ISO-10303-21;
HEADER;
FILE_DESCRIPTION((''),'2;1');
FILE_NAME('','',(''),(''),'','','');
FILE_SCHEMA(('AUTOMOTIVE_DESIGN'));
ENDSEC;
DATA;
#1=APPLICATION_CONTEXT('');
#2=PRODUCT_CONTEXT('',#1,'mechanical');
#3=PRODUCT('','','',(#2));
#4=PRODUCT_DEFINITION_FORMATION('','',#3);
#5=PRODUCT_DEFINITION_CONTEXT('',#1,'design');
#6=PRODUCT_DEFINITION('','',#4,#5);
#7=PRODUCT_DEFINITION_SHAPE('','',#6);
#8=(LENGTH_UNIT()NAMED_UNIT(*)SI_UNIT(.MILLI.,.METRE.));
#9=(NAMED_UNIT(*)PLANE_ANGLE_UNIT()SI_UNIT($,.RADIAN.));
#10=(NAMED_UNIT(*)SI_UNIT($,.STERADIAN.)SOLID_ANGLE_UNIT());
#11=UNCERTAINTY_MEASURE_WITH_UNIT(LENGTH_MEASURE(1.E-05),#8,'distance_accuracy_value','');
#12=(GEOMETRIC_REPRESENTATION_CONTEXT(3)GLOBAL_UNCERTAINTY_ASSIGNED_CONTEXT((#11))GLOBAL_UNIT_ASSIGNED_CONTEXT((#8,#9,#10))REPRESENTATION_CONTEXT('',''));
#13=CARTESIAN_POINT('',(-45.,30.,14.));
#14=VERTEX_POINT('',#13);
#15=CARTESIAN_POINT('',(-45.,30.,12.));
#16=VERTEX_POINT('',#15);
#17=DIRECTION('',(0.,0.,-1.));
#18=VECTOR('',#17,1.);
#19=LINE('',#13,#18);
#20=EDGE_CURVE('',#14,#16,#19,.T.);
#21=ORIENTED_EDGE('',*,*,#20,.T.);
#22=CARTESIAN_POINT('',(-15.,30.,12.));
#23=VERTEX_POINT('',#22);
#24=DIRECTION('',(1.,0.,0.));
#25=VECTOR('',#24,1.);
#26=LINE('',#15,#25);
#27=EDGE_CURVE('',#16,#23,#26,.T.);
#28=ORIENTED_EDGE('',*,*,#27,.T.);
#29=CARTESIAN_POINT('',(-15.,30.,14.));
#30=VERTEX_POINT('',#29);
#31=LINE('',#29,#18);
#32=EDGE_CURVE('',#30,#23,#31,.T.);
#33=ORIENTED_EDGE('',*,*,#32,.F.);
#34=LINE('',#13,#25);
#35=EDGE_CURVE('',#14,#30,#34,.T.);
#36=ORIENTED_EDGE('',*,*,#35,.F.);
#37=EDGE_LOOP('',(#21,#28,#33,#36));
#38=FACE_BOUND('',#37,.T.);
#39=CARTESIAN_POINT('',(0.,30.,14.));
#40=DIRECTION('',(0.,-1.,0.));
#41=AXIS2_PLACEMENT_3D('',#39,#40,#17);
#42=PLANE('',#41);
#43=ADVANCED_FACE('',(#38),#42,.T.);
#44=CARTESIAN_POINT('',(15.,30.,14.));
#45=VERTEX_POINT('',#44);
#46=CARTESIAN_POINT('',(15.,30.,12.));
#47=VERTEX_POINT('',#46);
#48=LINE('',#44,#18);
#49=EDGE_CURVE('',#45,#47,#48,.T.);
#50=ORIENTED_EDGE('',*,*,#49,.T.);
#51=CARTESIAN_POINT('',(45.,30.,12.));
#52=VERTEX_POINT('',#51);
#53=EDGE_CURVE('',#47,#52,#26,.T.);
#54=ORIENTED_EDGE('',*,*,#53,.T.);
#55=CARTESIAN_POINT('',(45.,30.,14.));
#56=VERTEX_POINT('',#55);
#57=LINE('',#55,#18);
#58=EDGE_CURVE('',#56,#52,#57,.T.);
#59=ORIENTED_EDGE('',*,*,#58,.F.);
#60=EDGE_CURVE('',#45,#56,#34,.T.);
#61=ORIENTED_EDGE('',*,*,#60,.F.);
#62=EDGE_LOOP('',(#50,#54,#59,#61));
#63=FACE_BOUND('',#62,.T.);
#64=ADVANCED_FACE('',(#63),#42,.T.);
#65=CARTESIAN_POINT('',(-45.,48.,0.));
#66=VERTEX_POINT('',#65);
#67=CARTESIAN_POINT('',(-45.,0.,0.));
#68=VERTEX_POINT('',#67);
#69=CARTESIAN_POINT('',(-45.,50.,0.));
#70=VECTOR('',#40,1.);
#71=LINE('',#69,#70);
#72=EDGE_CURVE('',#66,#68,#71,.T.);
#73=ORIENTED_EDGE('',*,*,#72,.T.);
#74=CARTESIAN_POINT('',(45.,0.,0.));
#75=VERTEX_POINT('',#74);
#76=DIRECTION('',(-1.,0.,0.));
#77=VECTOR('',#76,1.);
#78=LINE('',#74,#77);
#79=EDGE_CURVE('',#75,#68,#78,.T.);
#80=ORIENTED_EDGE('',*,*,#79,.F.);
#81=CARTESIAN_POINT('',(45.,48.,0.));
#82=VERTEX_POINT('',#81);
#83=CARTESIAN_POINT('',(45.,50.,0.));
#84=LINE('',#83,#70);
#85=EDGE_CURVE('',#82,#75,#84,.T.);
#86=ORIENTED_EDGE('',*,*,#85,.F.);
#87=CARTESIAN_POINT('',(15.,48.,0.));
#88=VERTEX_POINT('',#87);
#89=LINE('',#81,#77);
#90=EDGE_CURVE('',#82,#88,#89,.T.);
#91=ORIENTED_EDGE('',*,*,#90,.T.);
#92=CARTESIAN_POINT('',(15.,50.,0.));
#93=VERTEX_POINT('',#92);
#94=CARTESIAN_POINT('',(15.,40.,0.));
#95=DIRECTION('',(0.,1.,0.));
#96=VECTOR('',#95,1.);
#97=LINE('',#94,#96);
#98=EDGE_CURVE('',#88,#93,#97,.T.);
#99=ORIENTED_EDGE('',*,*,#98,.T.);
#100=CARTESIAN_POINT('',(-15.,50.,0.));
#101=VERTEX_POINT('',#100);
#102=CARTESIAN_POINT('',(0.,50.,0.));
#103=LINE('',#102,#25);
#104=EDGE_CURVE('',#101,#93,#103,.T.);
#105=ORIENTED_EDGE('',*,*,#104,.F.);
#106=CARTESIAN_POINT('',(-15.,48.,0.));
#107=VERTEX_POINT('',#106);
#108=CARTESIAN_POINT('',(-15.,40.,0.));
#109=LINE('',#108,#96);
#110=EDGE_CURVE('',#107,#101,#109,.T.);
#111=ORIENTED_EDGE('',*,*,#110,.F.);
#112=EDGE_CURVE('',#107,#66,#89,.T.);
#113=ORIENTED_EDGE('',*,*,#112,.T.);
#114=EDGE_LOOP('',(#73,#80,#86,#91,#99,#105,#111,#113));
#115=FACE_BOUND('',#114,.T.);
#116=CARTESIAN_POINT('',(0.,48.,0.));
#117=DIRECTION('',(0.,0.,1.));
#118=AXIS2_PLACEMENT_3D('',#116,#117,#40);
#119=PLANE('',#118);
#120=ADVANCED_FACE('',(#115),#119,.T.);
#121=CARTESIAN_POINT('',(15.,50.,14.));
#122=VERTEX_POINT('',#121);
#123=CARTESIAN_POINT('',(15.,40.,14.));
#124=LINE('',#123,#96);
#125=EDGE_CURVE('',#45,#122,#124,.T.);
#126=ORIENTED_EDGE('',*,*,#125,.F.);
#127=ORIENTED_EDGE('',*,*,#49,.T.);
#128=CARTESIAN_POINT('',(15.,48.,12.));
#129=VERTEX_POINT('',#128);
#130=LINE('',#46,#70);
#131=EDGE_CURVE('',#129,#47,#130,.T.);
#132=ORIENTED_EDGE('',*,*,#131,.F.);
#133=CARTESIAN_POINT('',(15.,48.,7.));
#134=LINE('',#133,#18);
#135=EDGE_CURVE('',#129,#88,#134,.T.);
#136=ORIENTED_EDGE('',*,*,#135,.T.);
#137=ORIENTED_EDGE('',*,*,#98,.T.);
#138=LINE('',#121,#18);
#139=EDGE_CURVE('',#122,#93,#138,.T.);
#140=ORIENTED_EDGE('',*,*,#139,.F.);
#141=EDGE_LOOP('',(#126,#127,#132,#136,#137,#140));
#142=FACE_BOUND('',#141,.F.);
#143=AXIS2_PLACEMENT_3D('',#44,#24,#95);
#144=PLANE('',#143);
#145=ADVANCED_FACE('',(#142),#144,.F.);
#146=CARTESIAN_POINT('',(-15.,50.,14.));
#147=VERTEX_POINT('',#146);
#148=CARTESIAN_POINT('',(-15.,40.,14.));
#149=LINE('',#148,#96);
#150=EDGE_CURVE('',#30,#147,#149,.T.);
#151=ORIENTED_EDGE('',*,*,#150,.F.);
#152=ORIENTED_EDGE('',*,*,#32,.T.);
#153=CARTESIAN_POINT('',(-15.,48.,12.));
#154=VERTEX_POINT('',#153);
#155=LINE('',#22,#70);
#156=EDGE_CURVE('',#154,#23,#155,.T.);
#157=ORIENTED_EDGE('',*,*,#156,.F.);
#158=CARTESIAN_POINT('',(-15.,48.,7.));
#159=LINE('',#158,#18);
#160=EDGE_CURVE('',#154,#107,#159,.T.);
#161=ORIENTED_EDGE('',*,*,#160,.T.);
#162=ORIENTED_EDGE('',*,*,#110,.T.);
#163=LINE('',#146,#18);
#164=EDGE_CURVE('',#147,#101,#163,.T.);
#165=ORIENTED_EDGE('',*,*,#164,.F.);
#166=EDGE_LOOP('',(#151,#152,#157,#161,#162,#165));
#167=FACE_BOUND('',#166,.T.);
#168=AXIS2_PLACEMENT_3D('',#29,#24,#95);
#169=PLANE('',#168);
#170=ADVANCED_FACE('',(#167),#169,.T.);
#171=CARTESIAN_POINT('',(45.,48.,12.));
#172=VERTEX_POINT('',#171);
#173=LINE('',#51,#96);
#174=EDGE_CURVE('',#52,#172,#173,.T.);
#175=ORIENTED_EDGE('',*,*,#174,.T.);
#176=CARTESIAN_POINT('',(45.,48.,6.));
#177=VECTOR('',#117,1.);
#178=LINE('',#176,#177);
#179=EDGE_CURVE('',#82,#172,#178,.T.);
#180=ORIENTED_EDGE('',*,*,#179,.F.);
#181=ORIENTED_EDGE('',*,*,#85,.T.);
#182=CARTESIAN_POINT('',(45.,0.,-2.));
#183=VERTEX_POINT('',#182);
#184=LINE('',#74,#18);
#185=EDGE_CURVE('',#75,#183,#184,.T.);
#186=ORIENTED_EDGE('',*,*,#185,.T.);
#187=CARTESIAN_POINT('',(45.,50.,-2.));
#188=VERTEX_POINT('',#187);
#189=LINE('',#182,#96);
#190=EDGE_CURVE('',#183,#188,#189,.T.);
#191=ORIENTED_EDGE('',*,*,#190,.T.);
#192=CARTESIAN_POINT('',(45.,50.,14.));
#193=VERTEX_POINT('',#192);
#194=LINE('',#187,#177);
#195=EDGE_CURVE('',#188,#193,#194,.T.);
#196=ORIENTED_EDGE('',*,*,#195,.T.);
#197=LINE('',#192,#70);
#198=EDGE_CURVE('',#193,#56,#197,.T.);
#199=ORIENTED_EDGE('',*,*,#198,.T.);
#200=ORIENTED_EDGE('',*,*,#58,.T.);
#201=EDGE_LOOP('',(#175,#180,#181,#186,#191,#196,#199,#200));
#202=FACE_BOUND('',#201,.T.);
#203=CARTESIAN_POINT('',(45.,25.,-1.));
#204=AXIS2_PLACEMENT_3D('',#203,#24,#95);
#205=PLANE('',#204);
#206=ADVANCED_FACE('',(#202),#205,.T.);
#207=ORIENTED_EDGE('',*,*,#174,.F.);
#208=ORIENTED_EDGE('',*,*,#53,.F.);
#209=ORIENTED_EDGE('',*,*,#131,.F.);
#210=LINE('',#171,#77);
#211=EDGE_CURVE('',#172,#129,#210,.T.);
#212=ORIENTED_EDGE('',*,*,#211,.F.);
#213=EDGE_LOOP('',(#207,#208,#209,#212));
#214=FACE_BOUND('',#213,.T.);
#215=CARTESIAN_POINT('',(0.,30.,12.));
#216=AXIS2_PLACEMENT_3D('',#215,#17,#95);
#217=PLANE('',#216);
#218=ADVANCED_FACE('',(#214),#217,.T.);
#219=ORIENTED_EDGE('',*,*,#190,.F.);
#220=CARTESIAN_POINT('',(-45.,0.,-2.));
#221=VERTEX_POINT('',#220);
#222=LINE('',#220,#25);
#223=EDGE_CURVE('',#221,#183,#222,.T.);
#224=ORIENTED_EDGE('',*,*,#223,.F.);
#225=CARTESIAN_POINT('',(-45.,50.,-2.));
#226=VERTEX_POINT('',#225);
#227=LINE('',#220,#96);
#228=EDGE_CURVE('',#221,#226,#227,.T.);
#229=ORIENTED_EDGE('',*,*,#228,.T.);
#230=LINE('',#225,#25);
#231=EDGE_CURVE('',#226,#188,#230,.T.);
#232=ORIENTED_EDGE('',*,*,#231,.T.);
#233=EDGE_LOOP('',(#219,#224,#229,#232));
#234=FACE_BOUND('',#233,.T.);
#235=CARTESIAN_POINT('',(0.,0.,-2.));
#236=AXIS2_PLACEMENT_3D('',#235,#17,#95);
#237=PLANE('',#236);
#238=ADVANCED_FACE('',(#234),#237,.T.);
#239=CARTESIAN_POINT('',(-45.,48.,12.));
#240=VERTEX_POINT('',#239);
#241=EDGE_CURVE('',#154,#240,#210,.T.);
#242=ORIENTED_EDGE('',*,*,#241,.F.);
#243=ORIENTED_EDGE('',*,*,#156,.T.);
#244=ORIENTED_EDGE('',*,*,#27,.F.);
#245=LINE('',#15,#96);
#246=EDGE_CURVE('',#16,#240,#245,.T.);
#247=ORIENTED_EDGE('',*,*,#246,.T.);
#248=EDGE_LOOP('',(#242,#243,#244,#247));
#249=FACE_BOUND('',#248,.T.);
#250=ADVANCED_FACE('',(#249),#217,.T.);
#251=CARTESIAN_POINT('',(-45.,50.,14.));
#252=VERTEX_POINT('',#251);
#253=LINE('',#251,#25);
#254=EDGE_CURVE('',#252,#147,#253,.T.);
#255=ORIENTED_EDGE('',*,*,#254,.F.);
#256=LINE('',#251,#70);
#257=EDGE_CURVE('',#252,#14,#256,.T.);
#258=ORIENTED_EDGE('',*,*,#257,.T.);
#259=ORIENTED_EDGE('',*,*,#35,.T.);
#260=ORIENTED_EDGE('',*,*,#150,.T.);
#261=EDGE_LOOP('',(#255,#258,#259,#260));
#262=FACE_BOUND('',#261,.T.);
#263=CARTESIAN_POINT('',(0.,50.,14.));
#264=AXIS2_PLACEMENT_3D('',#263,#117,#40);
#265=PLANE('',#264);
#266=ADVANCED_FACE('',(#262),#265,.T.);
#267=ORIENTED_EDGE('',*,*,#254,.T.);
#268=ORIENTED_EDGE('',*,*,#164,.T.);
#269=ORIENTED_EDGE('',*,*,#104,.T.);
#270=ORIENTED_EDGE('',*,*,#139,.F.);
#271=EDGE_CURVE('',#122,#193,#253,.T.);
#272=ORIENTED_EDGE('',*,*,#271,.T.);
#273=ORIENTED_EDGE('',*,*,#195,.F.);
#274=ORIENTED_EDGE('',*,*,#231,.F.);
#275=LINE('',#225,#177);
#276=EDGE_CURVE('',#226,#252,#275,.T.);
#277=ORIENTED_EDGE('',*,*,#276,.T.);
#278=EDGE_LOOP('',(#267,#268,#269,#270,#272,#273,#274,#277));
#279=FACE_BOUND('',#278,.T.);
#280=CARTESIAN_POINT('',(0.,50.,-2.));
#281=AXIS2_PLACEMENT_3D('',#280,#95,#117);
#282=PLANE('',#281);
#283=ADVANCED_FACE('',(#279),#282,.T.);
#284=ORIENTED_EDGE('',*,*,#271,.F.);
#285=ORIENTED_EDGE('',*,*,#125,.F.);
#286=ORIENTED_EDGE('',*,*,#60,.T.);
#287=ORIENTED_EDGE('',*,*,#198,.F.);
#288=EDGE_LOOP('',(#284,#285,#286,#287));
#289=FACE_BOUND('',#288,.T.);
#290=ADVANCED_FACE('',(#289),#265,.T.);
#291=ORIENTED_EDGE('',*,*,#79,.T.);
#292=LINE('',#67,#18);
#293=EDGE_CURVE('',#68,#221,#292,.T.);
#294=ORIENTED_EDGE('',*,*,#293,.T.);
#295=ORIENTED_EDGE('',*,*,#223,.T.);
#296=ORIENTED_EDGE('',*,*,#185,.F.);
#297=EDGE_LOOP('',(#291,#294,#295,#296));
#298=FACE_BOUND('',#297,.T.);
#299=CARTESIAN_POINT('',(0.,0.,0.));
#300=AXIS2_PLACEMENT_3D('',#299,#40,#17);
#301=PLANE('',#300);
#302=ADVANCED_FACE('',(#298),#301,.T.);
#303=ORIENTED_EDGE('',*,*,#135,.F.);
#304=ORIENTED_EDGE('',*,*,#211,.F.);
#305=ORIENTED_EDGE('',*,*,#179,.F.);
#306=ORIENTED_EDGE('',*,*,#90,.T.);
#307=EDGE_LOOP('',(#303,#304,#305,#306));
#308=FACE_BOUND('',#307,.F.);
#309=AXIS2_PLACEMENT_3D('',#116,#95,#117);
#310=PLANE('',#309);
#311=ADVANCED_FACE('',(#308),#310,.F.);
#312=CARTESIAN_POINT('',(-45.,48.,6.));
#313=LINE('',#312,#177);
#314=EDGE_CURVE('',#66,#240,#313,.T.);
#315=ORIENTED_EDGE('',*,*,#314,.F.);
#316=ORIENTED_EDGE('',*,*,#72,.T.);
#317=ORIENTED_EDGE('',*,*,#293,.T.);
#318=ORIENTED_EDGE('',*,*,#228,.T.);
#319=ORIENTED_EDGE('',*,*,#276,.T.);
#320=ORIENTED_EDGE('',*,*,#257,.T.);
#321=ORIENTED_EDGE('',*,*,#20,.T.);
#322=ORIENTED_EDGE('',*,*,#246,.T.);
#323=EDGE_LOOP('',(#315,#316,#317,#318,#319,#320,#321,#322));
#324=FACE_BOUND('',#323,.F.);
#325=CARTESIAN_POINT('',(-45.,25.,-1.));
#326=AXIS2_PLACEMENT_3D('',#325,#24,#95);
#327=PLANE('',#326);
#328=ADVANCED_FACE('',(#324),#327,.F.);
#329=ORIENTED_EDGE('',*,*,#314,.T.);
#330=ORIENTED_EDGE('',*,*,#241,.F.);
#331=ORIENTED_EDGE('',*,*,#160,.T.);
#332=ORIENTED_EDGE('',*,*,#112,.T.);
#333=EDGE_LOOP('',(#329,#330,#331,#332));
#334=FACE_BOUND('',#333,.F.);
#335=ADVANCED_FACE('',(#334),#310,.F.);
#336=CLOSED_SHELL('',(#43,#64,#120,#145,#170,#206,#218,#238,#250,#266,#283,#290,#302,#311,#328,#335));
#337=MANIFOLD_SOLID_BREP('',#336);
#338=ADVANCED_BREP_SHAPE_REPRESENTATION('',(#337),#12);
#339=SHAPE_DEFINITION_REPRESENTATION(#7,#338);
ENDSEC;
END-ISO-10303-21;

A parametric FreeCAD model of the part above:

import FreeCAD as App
import Part
import Sketcher

V = App.Vector
Q = App.Units.Quantity


def add_polygon(sketch, points):
    """Adds a closed chain of lines whose ends are joined by coincident constraints."""
    first, n = sketch.GeometryCount, len(points)
    for a, b in zip(points, points[1:] + points[:1]):
        sketch.addGeometry(Part.LineSegment(App.Vector(*a, 0), App.Vector(*b, 0)), False)
    for i in range(n):
        sketch.addConstraint(Sketcher.Constraint("Coincident", first + i, 2, first + (i + 1) % n, 1))

doc = App.newDocument("Part")
body = doc.addObject("PartDesign::Body", "Body")

sketch1 = body.newObject("Sketcher::SketchObject", "Sketch")
sketch1.AttachmentSupport = (doc.getObject("YZ_Plane"), [""])
sketch1.MapMode = "FlatFace"
add_polygon(sketch1, [(0, 0), (0, -2), (50, -2), (50, 14), (30, 14), (30, 12), (48, 12), (48, 0)])
sketch1.addConstraint(Sketcher.Constraint("Vertical", 0))
sketch1.addConstraint(Sketcher.Constraint("Horizontal", 1))
sketch1.addConstraint(Sketcher.Constraint("Vertical", 2))
sketch1.addConstraint(Sketcher.Constraint("Horizontal", 3))
sketch1.addConstraint(Sketcher.Constraint("Vertical", 4))
sketch1.addConstraint(Sketcher.Constraint("Horizontal", 5))
sketch1.addConstraint(Sketcher.Constraint("Vertical", 6))
sketch1.addConstraint(Sketcher.Constraint("Horizontal", 7))
sketch1.addConstraint(Sketcher.Constraint("Coincident", 7, 2, -1, 1))
sketch1.addConstraint(Sketcher.Constraint("Equal", 0, 4))
sketch1.addConstraint(Sketcher.Constraint("DistanceX", 1, 1, 1, 2, Q("50 mm")))
sketch1.addConstraint(Sketcher.Constraint("DistanceX", 3, 2, 3, 1, Q("20 mm")))
sketch1.addConstraint(Sketcher.Constraint("DistanceX", 5, 1, 5, 2, Q("18 mm")))
sketch1.addConstraint(Sketcher.Constraint("DistanceY", 0, 2, 0, 1, Q("2 mm")))
sketch1.addConstraint(Sketcher.Constraint("DistanceY", 2, 1, 2, 2, Q("16 mm")))
pad1 = body.newObject("PartDesign::Pad", "Pad")
pad1.Profile = sketch1
pad1.Length = 90
pad1.Midplane = True

sketch2 = body.newObject("Sketcher::SketchObject", "Sketch001")
sketch2.AttachmentSupport = (doc.getObject("XY_Plane"), [""])
sketch2.MapMode = "FlatFace"
sketch2.AttachmentOffset = App.Placement(V(0, 0, 14), App.Rotation())
add_polygon(sketch2, [(-15, 50), (-15, 30), (15, 30), (15, 50)])
sketch2.addConstraint(Sketcher.Constraint("Vertical", 0))
sketch2.addConstraint(Sketcher.Constraint("Horizontal", 1))
sketch2.addConstraint(Sketcher.Constraint("Vertical", 2))
sketch2.addConstraint(Sketcher.Constraint("Horizontal", 3))
sketch2.addConstraint(Sketcher.Constraint("DistanceX", 1, 1, 1, 2, Q("30 mm")))
sketch2.addConstraint(Sketcher.Constraint("DistanceY", 0, 2, 0, 1, Q("20 mm")))
sketch2.addConstraint(Sketcher.Constraint("DistanceX", 0, 2, -1, 1, Q("15 mm")))
sketch2.addConstraint(Sketcher.Constraint("DistanceY", -1, 1, 0, 2, Q("30 mm")))
pocket1 = body.newObject("PartDesign::Pocket", "Pocket")
pocket1.Profile = sketch2
pocket1.Length = 14

doc.recompute()
